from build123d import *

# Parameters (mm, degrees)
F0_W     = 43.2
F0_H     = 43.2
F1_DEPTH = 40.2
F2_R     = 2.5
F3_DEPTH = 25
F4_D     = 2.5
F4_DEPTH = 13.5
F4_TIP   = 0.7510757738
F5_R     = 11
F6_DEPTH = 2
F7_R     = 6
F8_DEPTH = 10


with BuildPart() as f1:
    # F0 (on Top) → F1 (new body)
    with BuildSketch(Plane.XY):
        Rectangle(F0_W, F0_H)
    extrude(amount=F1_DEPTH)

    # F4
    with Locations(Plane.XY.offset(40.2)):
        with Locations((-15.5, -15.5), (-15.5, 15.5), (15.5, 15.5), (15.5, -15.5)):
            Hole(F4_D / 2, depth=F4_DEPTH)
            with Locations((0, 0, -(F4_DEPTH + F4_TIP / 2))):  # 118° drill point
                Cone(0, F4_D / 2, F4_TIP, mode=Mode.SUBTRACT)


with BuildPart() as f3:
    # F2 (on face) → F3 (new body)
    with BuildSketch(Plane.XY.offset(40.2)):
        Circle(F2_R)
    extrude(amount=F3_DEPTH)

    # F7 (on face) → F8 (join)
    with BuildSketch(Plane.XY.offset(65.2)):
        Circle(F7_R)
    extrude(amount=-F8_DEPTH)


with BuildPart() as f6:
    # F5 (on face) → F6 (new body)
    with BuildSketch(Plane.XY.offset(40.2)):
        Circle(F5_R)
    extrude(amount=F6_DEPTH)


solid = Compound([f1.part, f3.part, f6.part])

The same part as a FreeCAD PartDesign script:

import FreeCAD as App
import Part
import Sketcher

V = App.Vector
Q = App.Units.Quantity


def add_polygon(sketch, points):
    """Adds a closed chain of lines whose ends are joined by coincident constraints."""
    first, n = sketch.GeometryCount, len(points)
    for a, b in zip(points, points[1:] + points[:1]):
        sketch.addGeometry(Part.LineSegment(App.Vector(*a, 0), App.Vector(*b, 0)), False)
    for i in range(n):
        sketch.addConstraint(Sketcher.Constraint("Coincident", first + i, 2, first + (i + 1) % n, 1))

doc = App.newDocument("Part")
body = doc.addObject("PartDesign::Body", "Body")

sketch1 = doc.addObject("Sketcher::SketchObject", "Sketch")
body.addObject(sketch1)
sketch1.AttachmentSupport = (doc.XY_Plane, [""])
sketch1.MapMode = "FlatFace"
add_polygon(sketch1, [(-22, 22), (-22, -22), (22, -22), (22, 22)])
sketch1.addConstraint(Sketcher.Constraint("Vertical", 0))
sketch1.addConstraint(Sketcher.Constraint("Horizontal", 1))
sketch1.addConstraint(Sketcher.Constraint("Vertical", 2))
sketch1.addConstraint(Sketcher.Constraint("Horizontal", 3))
sketch1.addConstraint(Sketcher.Constraint("Symmetric", 0, 2, 2, 2, -1, 1))
sketch1.addConstraint(Sketcher.Constraint("Equal", 3, 0))
sketch1.addConstraint(Sketcher.Constraint("DistanceX", 1, 1, 1, 2, Q("43.2 mm")))
pad1 = doc.addObject("PartDesign::Pad", "Pad")
body.addObject(pad1)
pad1.Profile = sketch1
pad1.Length = 40.2

sketch2 = doc.addObject("Sketcher::SketchObject", "Sketch001")
body.addObject(sketch2)
sketch2.AttachmentSupport = (doc.XY_Plane, [""])
sketch2.MapMode = "FlatFace"
sketch2.AttachmentOffset = App.Placement(V(0, 0, 40.2), App.Rotation())
sketch2.addGeometry(Part.Circle(V(-15.5, -15.5, 0), V(0, 0, 1), 1.2), False)
sketch2.addGeometry(Part.Circle(V(-15.5, 15.5, 0), V(0, 0, 1), 1.2), False)
sketch2.addGeometry(Part.Circle(V(15.5, 15.5, 0), V(0, 0, 1), 1.2), False)
sketch2.addGeometry(Part.Circle(V(15.5, -15.5, 0), V(0, 0, 1), 1.2), False)
sketch2.addConstraint(Sketcher.Constraint("Equal", 0, 1))
sketch2.addConstraint(Sketcher.Constraint("Equal", 1, 2))
sketch2.addConstraint(Sketcher.Constraint("Equal", 2, 3))
sketch2.addConstraint(Sketcher.Constraint("Symmetric", 0, 3, 2, 3, -1, 1))
sketch2.addConstraint(Sketcher.Constraint("Symmetric", 1, 3, 3, 3, -1, 1))
sketch2.addConstraint(Sketcher.Constraint("Symmetric", 1, 3, 2, 3, -2))
sketch2.addConstraint(Sketcher.Constraint("Diameter", 0, Q("2.5 mm")))
sketch2.addConstraint(Sketcher.Constraint("DistanceY", 0, 3, 1, 3, Q("31 mm")))
sketch2.addConstraint(Sketcher.Constraint("DistanceX", 1, 3, 2, 3, Q("31 mm")))
doc.recompute()
hole = doc.addObject("PartDesign::Hole", "Hole")
body.addObject(hole)
hole.Profile = sketch2
hole.ThreadType = "None"
hole.Diameter = 2.5
hole.DepthType = "Dimension"
hole.Depth = 13.5
hole.DrillPoint = "Angled"
hole.DrillPointAngle = 118
body2 = doc.addObject("PartDesign::Body", "Body001")

sketch3 = doc.addObject("Sketcher::SketchObject", "Sketch002")
body2.addObject(sketch3)
sketch3.AttachmentSupport = (doc.getObject("XY_Plane001"), [""])
sketch3.MapMode = "FlatFace"
sketch3.AttachmentOffset = App.Placement(V(0, 0, 40.2), App.Rotation())
sketch3.addGeometry(Part.Circle(V(0, 0, 0), V(0, 0, 1), 2.5), False)
sketch3.addConstraint(Sketcher.Constraint("Coincident", 0, 3, -1, 1))
sketch3.addConstraint(Sketcher.Constraint("Diameter", 0, Q("5 mm")))
pad2 = doc.addObject("PartDesign::Pad", "Pad001")
body2.addObject(pad2)
pad2.Profile = sketch3
pad2.Length = 25

sketch4 = doc.addObject("Sketcher::SketchObject", "Sketch003")
body2.addObject(sketch4)
sketch4.AttachmentSupport = (doc.getObject("XY_Plane001"), [""])
sketch4.MapMode = "FlatFace"
sketch4.AttachmentOffset = App.Placement(V(0, 0, 65.2), App.Rotation())
sketch4.addGeometry(Part.Circle(V(0, 0, 0), V(0, 0, 1), 6), False)
sketch4.addConstraint(Sketcher.Constraint("Coincident", 0, 3, -1, 1))
sketch4.addConstraint(Sketcher.Constraint("Diameter", 0, Q("12 mm")))
pad3 = doc.addObject("PartDesign::Pad", "Pad002")
body2.addObject(pad3)
pad3.Profile = sketch4
pad3.Length = 10
pad3.Reversed = True
body3 = doc.addObject("PartDesign::Body", "Body002")

sketch5 = doc.addObject("Sketcher::SketchObject", "Sketch004")
body3.addObject(sketch5)
sketch5.AttachmentSupport = (doc.getObject("XY_Plane002"), [""])
sketch5.MapMode = "FlatFace"
sketch5.AttachmentOffset = App.Placement(V(0, 0, 40.2), App.Rotation())
sketch5.addGeometry(Part.Circle(V(0, 0, 0), V(0, 0, 1), 11), False)
sketch5.addConstraint(Sketcher.Constraint("Coincident", 0, 3, -1, 1))
sketch5.addConstraint(Sketcher.Constraint("Diameter", 0, Q("22 mm")))
pad4 = doc.addObject("PartDesign::Pad", "Pad003")
body3.addObject(pad4)
pad4.Profile = sketch5
pad4.Length = 2

doc.recompute()
